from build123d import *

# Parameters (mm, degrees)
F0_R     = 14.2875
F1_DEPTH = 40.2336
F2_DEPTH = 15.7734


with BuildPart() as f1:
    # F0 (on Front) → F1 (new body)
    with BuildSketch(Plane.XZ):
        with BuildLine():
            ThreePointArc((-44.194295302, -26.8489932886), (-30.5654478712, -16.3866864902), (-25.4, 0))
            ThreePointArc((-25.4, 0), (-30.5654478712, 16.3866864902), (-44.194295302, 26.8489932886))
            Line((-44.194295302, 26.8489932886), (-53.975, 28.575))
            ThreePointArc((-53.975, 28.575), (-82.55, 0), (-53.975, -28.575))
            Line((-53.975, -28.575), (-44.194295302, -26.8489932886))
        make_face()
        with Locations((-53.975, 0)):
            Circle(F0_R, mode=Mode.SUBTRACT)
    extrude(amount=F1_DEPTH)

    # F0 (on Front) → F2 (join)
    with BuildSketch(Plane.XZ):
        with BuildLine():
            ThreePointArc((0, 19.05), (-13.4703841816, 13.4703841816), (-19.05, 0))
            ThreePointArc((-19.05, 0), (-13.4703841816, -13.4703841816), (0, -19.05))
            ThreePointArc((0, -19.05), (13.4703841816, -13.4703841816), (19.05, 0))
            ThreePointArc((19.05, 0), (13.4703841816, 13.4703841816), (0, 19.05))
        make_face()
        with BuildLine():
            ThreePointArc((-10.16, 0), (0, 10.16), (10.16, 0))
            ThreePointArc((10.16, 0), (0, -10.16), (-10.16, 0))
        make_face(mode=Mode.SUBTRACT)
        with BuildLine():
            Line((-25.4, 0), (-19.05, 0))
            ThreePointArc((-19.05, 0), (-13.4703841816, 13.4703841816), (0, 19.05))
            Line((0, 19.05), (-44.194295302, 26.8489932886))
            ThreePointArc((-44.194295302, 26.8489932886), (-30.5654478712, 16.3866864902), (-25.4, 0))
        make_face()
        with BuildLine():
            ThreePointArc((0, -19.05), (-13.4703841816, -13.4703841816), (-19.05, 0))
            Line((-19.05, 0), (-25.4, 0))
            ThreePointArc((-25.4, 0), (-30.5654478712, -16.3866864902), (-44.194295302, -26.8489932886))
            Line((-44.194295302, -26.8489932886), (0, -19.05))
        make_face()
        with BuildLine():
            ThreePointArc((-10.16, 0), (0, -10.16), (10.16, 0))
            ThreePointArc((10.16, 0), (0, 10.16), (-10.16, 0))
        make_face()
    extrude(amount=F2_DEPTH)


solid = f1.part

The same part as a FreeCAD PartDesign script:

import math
import FreeCAD as App
import Part
import Sketcher
from FreeCAD import Vector
Q = App.Units.Quantity

doc = App.newDocument("Part")
params = doc.addObject("Spreadsheet::Sheet", "Params")
for row, (alias, value) in enumerate([
    ("sketch1_diameter", "1.125 in"),
    ("sketch1_radius", "1.125 in"),
    ("pad1_length", "1.584 in"),
    ("sketch2_radius", "0.75 in"),
    ("sketch2_radius2", "1.125 in"),
    ("pad2_length", "0.621 in"),
], start=1):
    params.set(f"A{row}", alias)
    params.set(f"B{row}", "=" + value)
    params.setAlias(f"B{row}", alias)

body = doc.addObject("PartDesign::Body", "Body")

# Sketch on XZ plane
sketch1 = body.newObject("Sketcher::SketchObject", "Sketch")
sketch1.AttachmentSupport = (doc.getObject("XZ_Plane"), [""])
sketch1.MapMode = "FlatFace"
sketch1.addGeometry([
    Part.ArcOfCircle(Part.Circle(Vector(-54, 0, 0), Vector(0, 0, 1), 29), math.radians(-70), math.radians(0)),  # 0
    Part.ArcOfCircle(Part.Circle(Vector(-54, 0, 0), Vector(0, 0, 1), 29), math.radians(0), math.radians(70)),  # 1
    Part.LineSegment(Vector(-44, 27, 0), Vector(-54, 29, 0)),  # 2
    Part.ArcOfCircle(Part.Circle(Vector(-54, 0, 0), Vector(0, 0, 1), 29), math.radians(90), math.radians(270)),  # 3
    Part.LineSegment(Vector(-54, -29, 0), Vector(-44, -27, 0)),  # 4
    Part.Circle(Vector(-54, 0, 0), Vector(0, 0, 1), 14),  # 5
], False)
sketch1.addConstraint([
    Sketcher.Constraint("Tangent", 0, 2, 1, 1),
    Sketcher.Constraint("Coincident", 1, 2, 2, 1),
    Sketcher.Constraint("Coincident", 2, 2, 3, 1),
    Sketcher.Constraint("Coincident", 3, 2, 4, 1),
    Sketcher.Constraint("Coincident", 4, 2, 0, 1),
    Sketcher.Constraint("Coincident", 3, 3, 0, 3),
    Sketcher.Constraint("Coincident", 5, 3, 0, 3),
    Sketcher.Constraint("Equal", 0, 1),
    Sketcher.Constraint("Equal", 1, 3),
    Sketcher.Constraint("Symmetric", 2, 2, 3, 2, -1),
    Sketcher.Constraint("PointOnObject", 0, 2, -1),
    Sketcher.Constraint("Vertical", 5, 3, 2, 2),
    Sketcher.Constraint("Vertical", 1, 2, 4, 2),
    Sketcher.Constraint("Diameter", 5, Q("1.125 in")),
    Sketcher.Constraint("DistanceX", 0, 2, -1, 1, Q("1 in")),
    Sketcher.Constraint("Radius", 0, Q("1.125 in")),
    Sketcher.Constraint("Distance", 2, Q("9.931832 mm")),
])
sketch1.setExpression("Constraints[13]", "Params.sketch1_diameter")
sketch1.setExpression("Constraints[15]", "Params.sketch1_radius")
pad1 = body.newObject("PartDesign::Pad", "Pad")
pad1.Profile = sketch1
pad1.setExpression("Length", "Params.pad1_length")

# Sketch on XZ plane
sketch2 = body.newObject("Sketcher::SketchObject", "Sketch001")
sketch2.AttachmentSupport = (doc.getObject("XZ_Plane"), [""])
sketch2.MapMode = "FlatFace"
sketch2.addGeometry([
    Part.ArcOfCircle(Part.Circle(Vector(0, 0, 0), Vector(0, 0, 1), 19), math.radians(0), math.radians(90)),  # 0
    Part.LineSegment(Vector(0, 19, 0), Vector(-44, 27, 0)),  # 1
    Part.ArcOfCircle(Part.Circle(Vector(-54, 0, 0), Vector(0, 0, 1), 29), math.radians(0), math.radians(70)),  # 2
    Part.ArcOfCircle(Part.Circle(Vector(-54, 0, 0), Vector(0, 0, 1), 29), math.radians(-70), math.radians(0)),  # 3
    Part.LineSegment(Vector(-44, -27, 0), Vector(0, -19, 0)),  # 4
    Part.ArcOfCircle(Part.Circle(Vector(0, 0, 0), Vector(0, 0, 1), 19), math.radians(-90), math.radians(0)),  # 5
], False)
sketch2.addConstraint([
    Sketcher.Constraint("Coincident", 0, 2, 1, 1),
    Sketcher.Constraint("Coincident", 1, 2, 2, 2),
    Sketcher.Constraint("Tangent", 2, 1, 3, 2),
    Sketcher.Constraint("Coincident", 3, 1, 4, 1),
    Sketcher.Constraint("Coincident", 4, 2, 5, 1),
    Sketcher.Constraint("Tangent", 5, 2, 0, 1),
    Sketcher.Constraint("Coincident", 0, 3, -1, 1),
    Sketcher.Constraint("Equal", 2, 3),
    Sketcher.Constraint("Equal", 0, 5),
    Sketcher.Constraint("Symmetric", 1, 2, 3, 1, -1),
    Sketcher.Constraint("PointOnObject", 0, 2, -2),
    Sketcher.Constraint("PointOnObject", 2, 1, -1),
    Sketcher.Constraint("PointOnObject", 4, 2, -2),
    Sketcher.Constraint("PointOnObject", 5, 2, -1),
    Sketcher.Constraint("Radius", 0, Q("0.75 in")),
    Sketcher.Constraint("DistanceX", 2, 1, -1, 1, Q("1 in")),
    Sketcher.Constraint("Radius", 2, Q("1.125 in")),
    Sketcher.Constraint("Distance", 1, Q("44.877166 mm")),
])
sketch2.setExpression("Constraints[14]", "Params.sketch2_radius")
sketch2.setExpression("Constraints[16]", "Params.sketch2_radius2")
pad2 = body.newObject("PartDesign::Pad", "Pad001")
pad2.Profile = sketch2
pad2.setExpression("Length", "Params.pad2_length")

doc.recompute()
